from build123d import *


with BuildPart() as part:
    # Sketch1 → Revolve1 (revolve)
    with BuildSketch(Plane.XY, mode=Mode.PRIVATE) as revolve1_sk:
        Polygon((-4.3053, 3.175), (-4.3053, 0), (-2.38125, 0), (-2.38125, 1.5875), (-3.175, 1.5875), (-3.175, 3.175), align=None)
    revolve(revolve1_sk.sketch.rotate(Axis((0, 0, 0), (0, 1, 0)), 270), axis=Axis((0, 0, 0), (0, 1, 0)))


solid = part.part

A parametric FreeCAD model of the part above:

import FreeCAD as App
import Part
import Sketcher
Q = App.Units.Quantity


def add_polygon(sketch, points):
    """Adds a closed chain of lines whose ends are joined by coincident constraints."""
    first, n = sketch.GeometryCount, len(points)
    for a, b in zip(points, points[1:] + points[:1]):
        sketch.addGeometry(Part.LineSegment(App.Vector(*a, 0), App.Vector(*b, 0)), False)
    for i in range(n):
        sketch.addConstraint(Sketcher.Constraint("Coincident", first + i, 2, first + (i + 1) % n, 1))

doc = App.newDocument("Part")
body = doc.addObject("PartDesign::Body", "Body")

sketch1 = doc.addObject("Sketcher::SketchObject", "Sketch")
body.addObject(sketch1)
sketch1.AttachmentSupport = (doc.XY_Plane, [""])
sketch1.MapMode = "FlatFace"
add_polygon(sketch1, [(-4.3, 3.2), (-4.3, 0), (-2.4, 0), (-2.4, 1.6), (-3.2, 1.6), (-3.2, 3.2)])
sketch1.addConstraint(Sketcher.Constraint("Vertical", 0))
sketch1.addConstraint(Sketcher.Constraint("Horizontal", 1))
sketch1.addConstraint(Sketcher.Constraint("Vertical", 2))
sketch1.addConstraint(Sketcher.Constraint("Horizontal", 3))
sketch1.addConstraint(Sketcher.Constraint("Vertical", 4))
sketch1.addConstraint(Sketcher.Constraint("Horizontal", 5))
sketch1.addConstraint(Sketcher.Constraint("PointOnObject", 0, 2, -1))
sketch1.addConstraint(Sketcher.Constraint("Equal", 2, 4))
sketch1.addConstraint(Sketcher.Constraint("DistanceX", 3, 2, 3, 1, Q("0.03125 in")))
sketch1.addConstraint(Sketcher.Constraint("DistanceY", 0, 2, 0, 1, Q("0.125 in")))
sketch1.addConstraint(Sketcher.Constraint("DistanceX", 5, 2, 5, 1, Q("0.0445 in")))
sketch1.addConstraint(Sketcher.Constraint("DistanceX", 1, 2, -1, 1, Q("0.09375 in")))
revolution = doc.addObject("PartDesign::Revolution", "Revolution")
body.addObject(revolution)
revolution.Profile = sketch1
revolution.ReferenceAxis = (sketch1, ["V_Axis"])
revolution.Angle = 360

doc.recompute()
